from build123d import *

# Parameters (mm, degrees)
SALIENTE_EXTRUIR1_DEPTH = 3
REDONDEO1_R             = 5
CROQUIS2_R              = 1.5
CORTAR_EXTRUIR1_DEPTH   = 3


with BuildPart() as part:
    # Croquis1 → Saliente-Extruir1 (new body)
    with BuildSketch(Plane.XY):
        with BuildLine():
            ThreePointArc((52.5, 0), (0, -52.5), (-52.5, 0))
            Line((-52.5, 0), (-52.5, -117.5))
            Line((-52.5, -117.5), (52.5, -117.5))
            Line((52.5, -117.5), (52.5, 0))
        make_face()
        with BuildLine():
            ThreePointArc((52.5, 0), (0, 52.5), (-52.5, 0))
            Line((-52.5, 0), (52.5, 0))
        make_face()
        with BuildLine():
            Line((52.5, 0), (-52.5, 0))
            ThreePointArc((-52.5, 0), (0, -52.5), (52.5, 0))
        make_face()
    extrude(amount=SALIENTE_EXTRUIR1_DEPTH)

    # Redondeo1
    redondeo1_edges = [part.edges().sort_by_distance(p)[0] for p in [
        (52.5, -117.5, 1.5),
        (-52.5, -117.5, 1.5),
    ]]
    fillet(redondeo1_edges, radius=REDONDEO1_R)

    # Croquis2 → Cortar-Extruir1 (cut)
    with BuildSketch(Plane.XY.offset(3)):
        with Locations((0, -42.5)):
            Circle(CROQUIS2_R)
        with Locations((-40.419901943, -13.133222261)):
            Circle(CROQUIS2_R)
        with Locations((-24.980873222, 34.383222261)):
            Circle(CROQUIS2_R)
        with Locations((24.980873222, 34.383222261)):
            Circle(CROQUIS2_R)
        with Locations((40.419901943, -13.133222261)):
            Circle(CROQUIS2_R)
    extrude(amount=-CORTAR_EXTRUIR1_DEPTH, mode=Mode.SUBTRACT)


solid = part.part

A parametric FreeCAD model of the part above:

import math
import FreeCAD as App
import Part
import Sketcher
from FreeCAD import Vector


def edges_at(feature, points):
    """Names of the edges that pass closest to the given points."""
    edges = feature.Shape.Edges
    near = lambda p: min(range(len(edges)), key=lambda i: edges[i].distToShape(Part.Vertex(*p))[0])
    return sorted({f"Edge{near(p) + 1}" for p in points})

doc = App.newDocument("Part")
body = doc.addObject("PartDesign::Body", "Body")

sketch1 = doc.addObject("Sketcher::SketchObject", "Sketch")
body.addObject(sketch1)
sketch1.AttachmentSupport = (doc.XY_Plane, [""])
sketch1.MapMode = "FlatFace"
sketch1.addGeometry([
    Part.LineSegment(Vector(-52.5, -117.5, 0), Vector(52.5, -117.5, 0)),
    Part.LineSegment(Vector(52.5, -117.5, 0), Vector(52.5, 0, 0)),
    Part.ArcOfCircle(Part.Circle(Vector(0, 0, 0), Vector(0, 0, 1), 52.5), math.radians(0), math.radians(180)),
    Part.LineSegment(Vector(-52.5, 0, 0), Vector(-52.5, -117.5, 0)),
], False)
sketch1.addConstraint([
    Sketcher.Constraint("Coincident", 0, 2, 1, 1),
    Sketcher.Constraint("Tangent", 1, 2, 2, 1),
    Sketcher.Constraint("Tangent", 2, 2, 3, 1),
    Sketcher.Constraint("Coincident", 3, 2, 0, 1),
    Sketcher.Constraint("Horizontal", 0),
    Sketcher.Constraint("Vertical", 1),
    Sketcher.Constraint("Vertical", 3),
    Sketcher.Constraint("Coincident", 2, 3, -1, 1),
    Sketcher.Constraint("Radius", 2, 52.5),
    Sketcher.Constraint("DistanceY", 1, 1, 1, 2, 117.5),
])
pad1 = doc.addObject("PartDesign::Pad", "Pad")
body.addObject(pad1)
pad1.Profile = sketch1
pad1.Length = 3
doc.recompute()

fillet = doc.addObject("PartDesign::Fillet", "Fillet")
body.addObject(fillet)
fillet.Base = (pad1, edges_at(pad1, [(52.5, -117.5, 1.5), (-52.5, -117.5, 1.5)]))
fillet.Radius = 5

sketch2 = doc.addObject("Sketcher::SketchObject", "Sketch001")
body.addObject(sketch2)
sketch2.AttachmentSupport = (doc.XY_Plane, [""])
sketch2.MapMode = "FlatFace"
sketch2.AttachmentOffset = App.Placement(Vector(0, 0, 3), App.Rotation())
sketch2.addGeometry([
    Part.Circle(Vector(0, -42.5, 0), Vector(0, 0, 1), 1.5),
    Part.Circle(Vector(-40.419902, -13.133222, 0), Vector(0, 0, 1), 1.5),
    Part.Circle(Vector(-24.980873, 34.383222, 0), Vector(0, 0, 1), 1.5),
    Part.Circle(Vector(24.980873, 34.383222, 0), Vector(0, 0, 1), 1.5),
    Part.Circle(Vector(40.419902, -13.133222, 0), Vector(0, 0, 1), 1.5),
], False)
sketch2.addConstraint([
    Sketcher.Constraint("Equal", 0, 1),
    Sketcher.Constraint("Equal", 1, 2),
    Sketcher.Constraint("Equal", 2, 3),
    Sketcher.Constraint("Equal", 3, 4),
    Sketcher.Constraint("Symmetric", 2, 3, 3, 3, -2),
    Sketcher.Constraint("Symmetric", 1, 3, 4, 3, -2),
    Sketcher.Constraint("PointOnObject", 0, 3, -2),
    Sketcher.Constraint("Diameter", 0, 3.0),
    Sketcher.Constraint("DistanceY", 0, 3, -1, 1, 42.5),
    Sketcher.Constraint("DistanceX", 1, 3, -1, 1, 40.419902),
    Sketcher.Constraint("DistanceX", 1, 3, 2, 3, 15.439029),
    Sketcher.Constraint("DistanceY", 1, 3, -1, 1, 13.133222),
    Sketcher.Constraint("DistanceY", -1, 1, 2, 3, 34.383222),
])
pocket1 = doc.addObject("PartDesign::Pocket", "Pocket")
body.addObject(pocket1)
pocket1.Profile = sketch2
pocket1.Length = 3

doc.recompute()
